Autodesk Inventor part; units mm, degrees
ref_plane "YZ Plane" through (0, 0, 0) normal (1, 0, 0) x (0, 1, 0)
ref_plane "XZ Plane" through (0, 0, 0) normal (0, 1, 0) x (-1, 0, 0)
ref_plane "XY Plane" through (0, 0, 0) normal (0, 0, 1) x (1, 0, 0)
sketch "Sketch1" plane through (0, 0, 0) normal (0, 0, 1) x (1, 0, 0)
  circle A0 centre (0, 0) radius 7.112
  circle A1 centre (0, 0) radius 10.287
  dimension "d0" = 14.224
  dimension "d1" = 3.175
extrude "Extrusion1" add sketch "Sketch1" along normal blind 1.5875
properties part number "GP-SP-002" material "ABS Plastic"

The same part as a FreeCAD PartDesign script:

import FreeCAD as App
import Part
import Sketcher
Q = App.Units.Quantity

doc = App.newDocument("Part")
params = doc.addObject("Spreadsheet::Sheet", "Params")
for row, (alias, value) in enumerate([
    ("sketch1_diameter", "0.56 in"),
    ("sketch1_diameter2", "0.81 in"),
    ("pad1_length", "0.0625 in"),
], start=1):
    params.set(f"A{row}", alias)
    params.set(f"B{row}", "=" + value)
    params.setAlias(f"B{row}", alias)

body = doc.addObject("PartDesign::Body", "Body")

# Sketch on XY plane
sketch1 = body.newObject("Sketcher::SketchObject", "Sketch")
sketch1.AttachmentSupport = (doc.getObject("XY_Plane"), [""])
sketch1.MapMode = "FlatFace"
sketch1.addGeometry(Part.Circle(App.Vector(0, 0, 0), App.Vector(0, 0, 1), 10), False)
sketch1.addGeometry(Part.Circle(App.Vector(0, 0, 0), App.Vector(0, 0, 1), 7), False)
sketch1.addConstraint(Sketcher.Constraint("Coincident", 0, 3, -1, 1))
sketch1.addConstraint(Sketcher.Constraint("Coincident", 1, 3, -1, 1))
sketch1.addConstraint(Sketcher.Constraint("Diameter", 1, Q("0.56 in")))
sketch1.addConstraint(Sketcher.Constraint("Diameter", 0, Q("0.81 in")))
sketch1.setExpression("Constraints[2]", "Params.sketch1_diameter")
sketch1.setExpression("Constraints[3]", "Params.sketch1_diameter2")
pad1 = body.newObject("PartDesign::Pad", "Pad")
pad1.Profile = sketch1
pad1.setExpression("Length", "Params.pad1_length")

doc.recompute()
